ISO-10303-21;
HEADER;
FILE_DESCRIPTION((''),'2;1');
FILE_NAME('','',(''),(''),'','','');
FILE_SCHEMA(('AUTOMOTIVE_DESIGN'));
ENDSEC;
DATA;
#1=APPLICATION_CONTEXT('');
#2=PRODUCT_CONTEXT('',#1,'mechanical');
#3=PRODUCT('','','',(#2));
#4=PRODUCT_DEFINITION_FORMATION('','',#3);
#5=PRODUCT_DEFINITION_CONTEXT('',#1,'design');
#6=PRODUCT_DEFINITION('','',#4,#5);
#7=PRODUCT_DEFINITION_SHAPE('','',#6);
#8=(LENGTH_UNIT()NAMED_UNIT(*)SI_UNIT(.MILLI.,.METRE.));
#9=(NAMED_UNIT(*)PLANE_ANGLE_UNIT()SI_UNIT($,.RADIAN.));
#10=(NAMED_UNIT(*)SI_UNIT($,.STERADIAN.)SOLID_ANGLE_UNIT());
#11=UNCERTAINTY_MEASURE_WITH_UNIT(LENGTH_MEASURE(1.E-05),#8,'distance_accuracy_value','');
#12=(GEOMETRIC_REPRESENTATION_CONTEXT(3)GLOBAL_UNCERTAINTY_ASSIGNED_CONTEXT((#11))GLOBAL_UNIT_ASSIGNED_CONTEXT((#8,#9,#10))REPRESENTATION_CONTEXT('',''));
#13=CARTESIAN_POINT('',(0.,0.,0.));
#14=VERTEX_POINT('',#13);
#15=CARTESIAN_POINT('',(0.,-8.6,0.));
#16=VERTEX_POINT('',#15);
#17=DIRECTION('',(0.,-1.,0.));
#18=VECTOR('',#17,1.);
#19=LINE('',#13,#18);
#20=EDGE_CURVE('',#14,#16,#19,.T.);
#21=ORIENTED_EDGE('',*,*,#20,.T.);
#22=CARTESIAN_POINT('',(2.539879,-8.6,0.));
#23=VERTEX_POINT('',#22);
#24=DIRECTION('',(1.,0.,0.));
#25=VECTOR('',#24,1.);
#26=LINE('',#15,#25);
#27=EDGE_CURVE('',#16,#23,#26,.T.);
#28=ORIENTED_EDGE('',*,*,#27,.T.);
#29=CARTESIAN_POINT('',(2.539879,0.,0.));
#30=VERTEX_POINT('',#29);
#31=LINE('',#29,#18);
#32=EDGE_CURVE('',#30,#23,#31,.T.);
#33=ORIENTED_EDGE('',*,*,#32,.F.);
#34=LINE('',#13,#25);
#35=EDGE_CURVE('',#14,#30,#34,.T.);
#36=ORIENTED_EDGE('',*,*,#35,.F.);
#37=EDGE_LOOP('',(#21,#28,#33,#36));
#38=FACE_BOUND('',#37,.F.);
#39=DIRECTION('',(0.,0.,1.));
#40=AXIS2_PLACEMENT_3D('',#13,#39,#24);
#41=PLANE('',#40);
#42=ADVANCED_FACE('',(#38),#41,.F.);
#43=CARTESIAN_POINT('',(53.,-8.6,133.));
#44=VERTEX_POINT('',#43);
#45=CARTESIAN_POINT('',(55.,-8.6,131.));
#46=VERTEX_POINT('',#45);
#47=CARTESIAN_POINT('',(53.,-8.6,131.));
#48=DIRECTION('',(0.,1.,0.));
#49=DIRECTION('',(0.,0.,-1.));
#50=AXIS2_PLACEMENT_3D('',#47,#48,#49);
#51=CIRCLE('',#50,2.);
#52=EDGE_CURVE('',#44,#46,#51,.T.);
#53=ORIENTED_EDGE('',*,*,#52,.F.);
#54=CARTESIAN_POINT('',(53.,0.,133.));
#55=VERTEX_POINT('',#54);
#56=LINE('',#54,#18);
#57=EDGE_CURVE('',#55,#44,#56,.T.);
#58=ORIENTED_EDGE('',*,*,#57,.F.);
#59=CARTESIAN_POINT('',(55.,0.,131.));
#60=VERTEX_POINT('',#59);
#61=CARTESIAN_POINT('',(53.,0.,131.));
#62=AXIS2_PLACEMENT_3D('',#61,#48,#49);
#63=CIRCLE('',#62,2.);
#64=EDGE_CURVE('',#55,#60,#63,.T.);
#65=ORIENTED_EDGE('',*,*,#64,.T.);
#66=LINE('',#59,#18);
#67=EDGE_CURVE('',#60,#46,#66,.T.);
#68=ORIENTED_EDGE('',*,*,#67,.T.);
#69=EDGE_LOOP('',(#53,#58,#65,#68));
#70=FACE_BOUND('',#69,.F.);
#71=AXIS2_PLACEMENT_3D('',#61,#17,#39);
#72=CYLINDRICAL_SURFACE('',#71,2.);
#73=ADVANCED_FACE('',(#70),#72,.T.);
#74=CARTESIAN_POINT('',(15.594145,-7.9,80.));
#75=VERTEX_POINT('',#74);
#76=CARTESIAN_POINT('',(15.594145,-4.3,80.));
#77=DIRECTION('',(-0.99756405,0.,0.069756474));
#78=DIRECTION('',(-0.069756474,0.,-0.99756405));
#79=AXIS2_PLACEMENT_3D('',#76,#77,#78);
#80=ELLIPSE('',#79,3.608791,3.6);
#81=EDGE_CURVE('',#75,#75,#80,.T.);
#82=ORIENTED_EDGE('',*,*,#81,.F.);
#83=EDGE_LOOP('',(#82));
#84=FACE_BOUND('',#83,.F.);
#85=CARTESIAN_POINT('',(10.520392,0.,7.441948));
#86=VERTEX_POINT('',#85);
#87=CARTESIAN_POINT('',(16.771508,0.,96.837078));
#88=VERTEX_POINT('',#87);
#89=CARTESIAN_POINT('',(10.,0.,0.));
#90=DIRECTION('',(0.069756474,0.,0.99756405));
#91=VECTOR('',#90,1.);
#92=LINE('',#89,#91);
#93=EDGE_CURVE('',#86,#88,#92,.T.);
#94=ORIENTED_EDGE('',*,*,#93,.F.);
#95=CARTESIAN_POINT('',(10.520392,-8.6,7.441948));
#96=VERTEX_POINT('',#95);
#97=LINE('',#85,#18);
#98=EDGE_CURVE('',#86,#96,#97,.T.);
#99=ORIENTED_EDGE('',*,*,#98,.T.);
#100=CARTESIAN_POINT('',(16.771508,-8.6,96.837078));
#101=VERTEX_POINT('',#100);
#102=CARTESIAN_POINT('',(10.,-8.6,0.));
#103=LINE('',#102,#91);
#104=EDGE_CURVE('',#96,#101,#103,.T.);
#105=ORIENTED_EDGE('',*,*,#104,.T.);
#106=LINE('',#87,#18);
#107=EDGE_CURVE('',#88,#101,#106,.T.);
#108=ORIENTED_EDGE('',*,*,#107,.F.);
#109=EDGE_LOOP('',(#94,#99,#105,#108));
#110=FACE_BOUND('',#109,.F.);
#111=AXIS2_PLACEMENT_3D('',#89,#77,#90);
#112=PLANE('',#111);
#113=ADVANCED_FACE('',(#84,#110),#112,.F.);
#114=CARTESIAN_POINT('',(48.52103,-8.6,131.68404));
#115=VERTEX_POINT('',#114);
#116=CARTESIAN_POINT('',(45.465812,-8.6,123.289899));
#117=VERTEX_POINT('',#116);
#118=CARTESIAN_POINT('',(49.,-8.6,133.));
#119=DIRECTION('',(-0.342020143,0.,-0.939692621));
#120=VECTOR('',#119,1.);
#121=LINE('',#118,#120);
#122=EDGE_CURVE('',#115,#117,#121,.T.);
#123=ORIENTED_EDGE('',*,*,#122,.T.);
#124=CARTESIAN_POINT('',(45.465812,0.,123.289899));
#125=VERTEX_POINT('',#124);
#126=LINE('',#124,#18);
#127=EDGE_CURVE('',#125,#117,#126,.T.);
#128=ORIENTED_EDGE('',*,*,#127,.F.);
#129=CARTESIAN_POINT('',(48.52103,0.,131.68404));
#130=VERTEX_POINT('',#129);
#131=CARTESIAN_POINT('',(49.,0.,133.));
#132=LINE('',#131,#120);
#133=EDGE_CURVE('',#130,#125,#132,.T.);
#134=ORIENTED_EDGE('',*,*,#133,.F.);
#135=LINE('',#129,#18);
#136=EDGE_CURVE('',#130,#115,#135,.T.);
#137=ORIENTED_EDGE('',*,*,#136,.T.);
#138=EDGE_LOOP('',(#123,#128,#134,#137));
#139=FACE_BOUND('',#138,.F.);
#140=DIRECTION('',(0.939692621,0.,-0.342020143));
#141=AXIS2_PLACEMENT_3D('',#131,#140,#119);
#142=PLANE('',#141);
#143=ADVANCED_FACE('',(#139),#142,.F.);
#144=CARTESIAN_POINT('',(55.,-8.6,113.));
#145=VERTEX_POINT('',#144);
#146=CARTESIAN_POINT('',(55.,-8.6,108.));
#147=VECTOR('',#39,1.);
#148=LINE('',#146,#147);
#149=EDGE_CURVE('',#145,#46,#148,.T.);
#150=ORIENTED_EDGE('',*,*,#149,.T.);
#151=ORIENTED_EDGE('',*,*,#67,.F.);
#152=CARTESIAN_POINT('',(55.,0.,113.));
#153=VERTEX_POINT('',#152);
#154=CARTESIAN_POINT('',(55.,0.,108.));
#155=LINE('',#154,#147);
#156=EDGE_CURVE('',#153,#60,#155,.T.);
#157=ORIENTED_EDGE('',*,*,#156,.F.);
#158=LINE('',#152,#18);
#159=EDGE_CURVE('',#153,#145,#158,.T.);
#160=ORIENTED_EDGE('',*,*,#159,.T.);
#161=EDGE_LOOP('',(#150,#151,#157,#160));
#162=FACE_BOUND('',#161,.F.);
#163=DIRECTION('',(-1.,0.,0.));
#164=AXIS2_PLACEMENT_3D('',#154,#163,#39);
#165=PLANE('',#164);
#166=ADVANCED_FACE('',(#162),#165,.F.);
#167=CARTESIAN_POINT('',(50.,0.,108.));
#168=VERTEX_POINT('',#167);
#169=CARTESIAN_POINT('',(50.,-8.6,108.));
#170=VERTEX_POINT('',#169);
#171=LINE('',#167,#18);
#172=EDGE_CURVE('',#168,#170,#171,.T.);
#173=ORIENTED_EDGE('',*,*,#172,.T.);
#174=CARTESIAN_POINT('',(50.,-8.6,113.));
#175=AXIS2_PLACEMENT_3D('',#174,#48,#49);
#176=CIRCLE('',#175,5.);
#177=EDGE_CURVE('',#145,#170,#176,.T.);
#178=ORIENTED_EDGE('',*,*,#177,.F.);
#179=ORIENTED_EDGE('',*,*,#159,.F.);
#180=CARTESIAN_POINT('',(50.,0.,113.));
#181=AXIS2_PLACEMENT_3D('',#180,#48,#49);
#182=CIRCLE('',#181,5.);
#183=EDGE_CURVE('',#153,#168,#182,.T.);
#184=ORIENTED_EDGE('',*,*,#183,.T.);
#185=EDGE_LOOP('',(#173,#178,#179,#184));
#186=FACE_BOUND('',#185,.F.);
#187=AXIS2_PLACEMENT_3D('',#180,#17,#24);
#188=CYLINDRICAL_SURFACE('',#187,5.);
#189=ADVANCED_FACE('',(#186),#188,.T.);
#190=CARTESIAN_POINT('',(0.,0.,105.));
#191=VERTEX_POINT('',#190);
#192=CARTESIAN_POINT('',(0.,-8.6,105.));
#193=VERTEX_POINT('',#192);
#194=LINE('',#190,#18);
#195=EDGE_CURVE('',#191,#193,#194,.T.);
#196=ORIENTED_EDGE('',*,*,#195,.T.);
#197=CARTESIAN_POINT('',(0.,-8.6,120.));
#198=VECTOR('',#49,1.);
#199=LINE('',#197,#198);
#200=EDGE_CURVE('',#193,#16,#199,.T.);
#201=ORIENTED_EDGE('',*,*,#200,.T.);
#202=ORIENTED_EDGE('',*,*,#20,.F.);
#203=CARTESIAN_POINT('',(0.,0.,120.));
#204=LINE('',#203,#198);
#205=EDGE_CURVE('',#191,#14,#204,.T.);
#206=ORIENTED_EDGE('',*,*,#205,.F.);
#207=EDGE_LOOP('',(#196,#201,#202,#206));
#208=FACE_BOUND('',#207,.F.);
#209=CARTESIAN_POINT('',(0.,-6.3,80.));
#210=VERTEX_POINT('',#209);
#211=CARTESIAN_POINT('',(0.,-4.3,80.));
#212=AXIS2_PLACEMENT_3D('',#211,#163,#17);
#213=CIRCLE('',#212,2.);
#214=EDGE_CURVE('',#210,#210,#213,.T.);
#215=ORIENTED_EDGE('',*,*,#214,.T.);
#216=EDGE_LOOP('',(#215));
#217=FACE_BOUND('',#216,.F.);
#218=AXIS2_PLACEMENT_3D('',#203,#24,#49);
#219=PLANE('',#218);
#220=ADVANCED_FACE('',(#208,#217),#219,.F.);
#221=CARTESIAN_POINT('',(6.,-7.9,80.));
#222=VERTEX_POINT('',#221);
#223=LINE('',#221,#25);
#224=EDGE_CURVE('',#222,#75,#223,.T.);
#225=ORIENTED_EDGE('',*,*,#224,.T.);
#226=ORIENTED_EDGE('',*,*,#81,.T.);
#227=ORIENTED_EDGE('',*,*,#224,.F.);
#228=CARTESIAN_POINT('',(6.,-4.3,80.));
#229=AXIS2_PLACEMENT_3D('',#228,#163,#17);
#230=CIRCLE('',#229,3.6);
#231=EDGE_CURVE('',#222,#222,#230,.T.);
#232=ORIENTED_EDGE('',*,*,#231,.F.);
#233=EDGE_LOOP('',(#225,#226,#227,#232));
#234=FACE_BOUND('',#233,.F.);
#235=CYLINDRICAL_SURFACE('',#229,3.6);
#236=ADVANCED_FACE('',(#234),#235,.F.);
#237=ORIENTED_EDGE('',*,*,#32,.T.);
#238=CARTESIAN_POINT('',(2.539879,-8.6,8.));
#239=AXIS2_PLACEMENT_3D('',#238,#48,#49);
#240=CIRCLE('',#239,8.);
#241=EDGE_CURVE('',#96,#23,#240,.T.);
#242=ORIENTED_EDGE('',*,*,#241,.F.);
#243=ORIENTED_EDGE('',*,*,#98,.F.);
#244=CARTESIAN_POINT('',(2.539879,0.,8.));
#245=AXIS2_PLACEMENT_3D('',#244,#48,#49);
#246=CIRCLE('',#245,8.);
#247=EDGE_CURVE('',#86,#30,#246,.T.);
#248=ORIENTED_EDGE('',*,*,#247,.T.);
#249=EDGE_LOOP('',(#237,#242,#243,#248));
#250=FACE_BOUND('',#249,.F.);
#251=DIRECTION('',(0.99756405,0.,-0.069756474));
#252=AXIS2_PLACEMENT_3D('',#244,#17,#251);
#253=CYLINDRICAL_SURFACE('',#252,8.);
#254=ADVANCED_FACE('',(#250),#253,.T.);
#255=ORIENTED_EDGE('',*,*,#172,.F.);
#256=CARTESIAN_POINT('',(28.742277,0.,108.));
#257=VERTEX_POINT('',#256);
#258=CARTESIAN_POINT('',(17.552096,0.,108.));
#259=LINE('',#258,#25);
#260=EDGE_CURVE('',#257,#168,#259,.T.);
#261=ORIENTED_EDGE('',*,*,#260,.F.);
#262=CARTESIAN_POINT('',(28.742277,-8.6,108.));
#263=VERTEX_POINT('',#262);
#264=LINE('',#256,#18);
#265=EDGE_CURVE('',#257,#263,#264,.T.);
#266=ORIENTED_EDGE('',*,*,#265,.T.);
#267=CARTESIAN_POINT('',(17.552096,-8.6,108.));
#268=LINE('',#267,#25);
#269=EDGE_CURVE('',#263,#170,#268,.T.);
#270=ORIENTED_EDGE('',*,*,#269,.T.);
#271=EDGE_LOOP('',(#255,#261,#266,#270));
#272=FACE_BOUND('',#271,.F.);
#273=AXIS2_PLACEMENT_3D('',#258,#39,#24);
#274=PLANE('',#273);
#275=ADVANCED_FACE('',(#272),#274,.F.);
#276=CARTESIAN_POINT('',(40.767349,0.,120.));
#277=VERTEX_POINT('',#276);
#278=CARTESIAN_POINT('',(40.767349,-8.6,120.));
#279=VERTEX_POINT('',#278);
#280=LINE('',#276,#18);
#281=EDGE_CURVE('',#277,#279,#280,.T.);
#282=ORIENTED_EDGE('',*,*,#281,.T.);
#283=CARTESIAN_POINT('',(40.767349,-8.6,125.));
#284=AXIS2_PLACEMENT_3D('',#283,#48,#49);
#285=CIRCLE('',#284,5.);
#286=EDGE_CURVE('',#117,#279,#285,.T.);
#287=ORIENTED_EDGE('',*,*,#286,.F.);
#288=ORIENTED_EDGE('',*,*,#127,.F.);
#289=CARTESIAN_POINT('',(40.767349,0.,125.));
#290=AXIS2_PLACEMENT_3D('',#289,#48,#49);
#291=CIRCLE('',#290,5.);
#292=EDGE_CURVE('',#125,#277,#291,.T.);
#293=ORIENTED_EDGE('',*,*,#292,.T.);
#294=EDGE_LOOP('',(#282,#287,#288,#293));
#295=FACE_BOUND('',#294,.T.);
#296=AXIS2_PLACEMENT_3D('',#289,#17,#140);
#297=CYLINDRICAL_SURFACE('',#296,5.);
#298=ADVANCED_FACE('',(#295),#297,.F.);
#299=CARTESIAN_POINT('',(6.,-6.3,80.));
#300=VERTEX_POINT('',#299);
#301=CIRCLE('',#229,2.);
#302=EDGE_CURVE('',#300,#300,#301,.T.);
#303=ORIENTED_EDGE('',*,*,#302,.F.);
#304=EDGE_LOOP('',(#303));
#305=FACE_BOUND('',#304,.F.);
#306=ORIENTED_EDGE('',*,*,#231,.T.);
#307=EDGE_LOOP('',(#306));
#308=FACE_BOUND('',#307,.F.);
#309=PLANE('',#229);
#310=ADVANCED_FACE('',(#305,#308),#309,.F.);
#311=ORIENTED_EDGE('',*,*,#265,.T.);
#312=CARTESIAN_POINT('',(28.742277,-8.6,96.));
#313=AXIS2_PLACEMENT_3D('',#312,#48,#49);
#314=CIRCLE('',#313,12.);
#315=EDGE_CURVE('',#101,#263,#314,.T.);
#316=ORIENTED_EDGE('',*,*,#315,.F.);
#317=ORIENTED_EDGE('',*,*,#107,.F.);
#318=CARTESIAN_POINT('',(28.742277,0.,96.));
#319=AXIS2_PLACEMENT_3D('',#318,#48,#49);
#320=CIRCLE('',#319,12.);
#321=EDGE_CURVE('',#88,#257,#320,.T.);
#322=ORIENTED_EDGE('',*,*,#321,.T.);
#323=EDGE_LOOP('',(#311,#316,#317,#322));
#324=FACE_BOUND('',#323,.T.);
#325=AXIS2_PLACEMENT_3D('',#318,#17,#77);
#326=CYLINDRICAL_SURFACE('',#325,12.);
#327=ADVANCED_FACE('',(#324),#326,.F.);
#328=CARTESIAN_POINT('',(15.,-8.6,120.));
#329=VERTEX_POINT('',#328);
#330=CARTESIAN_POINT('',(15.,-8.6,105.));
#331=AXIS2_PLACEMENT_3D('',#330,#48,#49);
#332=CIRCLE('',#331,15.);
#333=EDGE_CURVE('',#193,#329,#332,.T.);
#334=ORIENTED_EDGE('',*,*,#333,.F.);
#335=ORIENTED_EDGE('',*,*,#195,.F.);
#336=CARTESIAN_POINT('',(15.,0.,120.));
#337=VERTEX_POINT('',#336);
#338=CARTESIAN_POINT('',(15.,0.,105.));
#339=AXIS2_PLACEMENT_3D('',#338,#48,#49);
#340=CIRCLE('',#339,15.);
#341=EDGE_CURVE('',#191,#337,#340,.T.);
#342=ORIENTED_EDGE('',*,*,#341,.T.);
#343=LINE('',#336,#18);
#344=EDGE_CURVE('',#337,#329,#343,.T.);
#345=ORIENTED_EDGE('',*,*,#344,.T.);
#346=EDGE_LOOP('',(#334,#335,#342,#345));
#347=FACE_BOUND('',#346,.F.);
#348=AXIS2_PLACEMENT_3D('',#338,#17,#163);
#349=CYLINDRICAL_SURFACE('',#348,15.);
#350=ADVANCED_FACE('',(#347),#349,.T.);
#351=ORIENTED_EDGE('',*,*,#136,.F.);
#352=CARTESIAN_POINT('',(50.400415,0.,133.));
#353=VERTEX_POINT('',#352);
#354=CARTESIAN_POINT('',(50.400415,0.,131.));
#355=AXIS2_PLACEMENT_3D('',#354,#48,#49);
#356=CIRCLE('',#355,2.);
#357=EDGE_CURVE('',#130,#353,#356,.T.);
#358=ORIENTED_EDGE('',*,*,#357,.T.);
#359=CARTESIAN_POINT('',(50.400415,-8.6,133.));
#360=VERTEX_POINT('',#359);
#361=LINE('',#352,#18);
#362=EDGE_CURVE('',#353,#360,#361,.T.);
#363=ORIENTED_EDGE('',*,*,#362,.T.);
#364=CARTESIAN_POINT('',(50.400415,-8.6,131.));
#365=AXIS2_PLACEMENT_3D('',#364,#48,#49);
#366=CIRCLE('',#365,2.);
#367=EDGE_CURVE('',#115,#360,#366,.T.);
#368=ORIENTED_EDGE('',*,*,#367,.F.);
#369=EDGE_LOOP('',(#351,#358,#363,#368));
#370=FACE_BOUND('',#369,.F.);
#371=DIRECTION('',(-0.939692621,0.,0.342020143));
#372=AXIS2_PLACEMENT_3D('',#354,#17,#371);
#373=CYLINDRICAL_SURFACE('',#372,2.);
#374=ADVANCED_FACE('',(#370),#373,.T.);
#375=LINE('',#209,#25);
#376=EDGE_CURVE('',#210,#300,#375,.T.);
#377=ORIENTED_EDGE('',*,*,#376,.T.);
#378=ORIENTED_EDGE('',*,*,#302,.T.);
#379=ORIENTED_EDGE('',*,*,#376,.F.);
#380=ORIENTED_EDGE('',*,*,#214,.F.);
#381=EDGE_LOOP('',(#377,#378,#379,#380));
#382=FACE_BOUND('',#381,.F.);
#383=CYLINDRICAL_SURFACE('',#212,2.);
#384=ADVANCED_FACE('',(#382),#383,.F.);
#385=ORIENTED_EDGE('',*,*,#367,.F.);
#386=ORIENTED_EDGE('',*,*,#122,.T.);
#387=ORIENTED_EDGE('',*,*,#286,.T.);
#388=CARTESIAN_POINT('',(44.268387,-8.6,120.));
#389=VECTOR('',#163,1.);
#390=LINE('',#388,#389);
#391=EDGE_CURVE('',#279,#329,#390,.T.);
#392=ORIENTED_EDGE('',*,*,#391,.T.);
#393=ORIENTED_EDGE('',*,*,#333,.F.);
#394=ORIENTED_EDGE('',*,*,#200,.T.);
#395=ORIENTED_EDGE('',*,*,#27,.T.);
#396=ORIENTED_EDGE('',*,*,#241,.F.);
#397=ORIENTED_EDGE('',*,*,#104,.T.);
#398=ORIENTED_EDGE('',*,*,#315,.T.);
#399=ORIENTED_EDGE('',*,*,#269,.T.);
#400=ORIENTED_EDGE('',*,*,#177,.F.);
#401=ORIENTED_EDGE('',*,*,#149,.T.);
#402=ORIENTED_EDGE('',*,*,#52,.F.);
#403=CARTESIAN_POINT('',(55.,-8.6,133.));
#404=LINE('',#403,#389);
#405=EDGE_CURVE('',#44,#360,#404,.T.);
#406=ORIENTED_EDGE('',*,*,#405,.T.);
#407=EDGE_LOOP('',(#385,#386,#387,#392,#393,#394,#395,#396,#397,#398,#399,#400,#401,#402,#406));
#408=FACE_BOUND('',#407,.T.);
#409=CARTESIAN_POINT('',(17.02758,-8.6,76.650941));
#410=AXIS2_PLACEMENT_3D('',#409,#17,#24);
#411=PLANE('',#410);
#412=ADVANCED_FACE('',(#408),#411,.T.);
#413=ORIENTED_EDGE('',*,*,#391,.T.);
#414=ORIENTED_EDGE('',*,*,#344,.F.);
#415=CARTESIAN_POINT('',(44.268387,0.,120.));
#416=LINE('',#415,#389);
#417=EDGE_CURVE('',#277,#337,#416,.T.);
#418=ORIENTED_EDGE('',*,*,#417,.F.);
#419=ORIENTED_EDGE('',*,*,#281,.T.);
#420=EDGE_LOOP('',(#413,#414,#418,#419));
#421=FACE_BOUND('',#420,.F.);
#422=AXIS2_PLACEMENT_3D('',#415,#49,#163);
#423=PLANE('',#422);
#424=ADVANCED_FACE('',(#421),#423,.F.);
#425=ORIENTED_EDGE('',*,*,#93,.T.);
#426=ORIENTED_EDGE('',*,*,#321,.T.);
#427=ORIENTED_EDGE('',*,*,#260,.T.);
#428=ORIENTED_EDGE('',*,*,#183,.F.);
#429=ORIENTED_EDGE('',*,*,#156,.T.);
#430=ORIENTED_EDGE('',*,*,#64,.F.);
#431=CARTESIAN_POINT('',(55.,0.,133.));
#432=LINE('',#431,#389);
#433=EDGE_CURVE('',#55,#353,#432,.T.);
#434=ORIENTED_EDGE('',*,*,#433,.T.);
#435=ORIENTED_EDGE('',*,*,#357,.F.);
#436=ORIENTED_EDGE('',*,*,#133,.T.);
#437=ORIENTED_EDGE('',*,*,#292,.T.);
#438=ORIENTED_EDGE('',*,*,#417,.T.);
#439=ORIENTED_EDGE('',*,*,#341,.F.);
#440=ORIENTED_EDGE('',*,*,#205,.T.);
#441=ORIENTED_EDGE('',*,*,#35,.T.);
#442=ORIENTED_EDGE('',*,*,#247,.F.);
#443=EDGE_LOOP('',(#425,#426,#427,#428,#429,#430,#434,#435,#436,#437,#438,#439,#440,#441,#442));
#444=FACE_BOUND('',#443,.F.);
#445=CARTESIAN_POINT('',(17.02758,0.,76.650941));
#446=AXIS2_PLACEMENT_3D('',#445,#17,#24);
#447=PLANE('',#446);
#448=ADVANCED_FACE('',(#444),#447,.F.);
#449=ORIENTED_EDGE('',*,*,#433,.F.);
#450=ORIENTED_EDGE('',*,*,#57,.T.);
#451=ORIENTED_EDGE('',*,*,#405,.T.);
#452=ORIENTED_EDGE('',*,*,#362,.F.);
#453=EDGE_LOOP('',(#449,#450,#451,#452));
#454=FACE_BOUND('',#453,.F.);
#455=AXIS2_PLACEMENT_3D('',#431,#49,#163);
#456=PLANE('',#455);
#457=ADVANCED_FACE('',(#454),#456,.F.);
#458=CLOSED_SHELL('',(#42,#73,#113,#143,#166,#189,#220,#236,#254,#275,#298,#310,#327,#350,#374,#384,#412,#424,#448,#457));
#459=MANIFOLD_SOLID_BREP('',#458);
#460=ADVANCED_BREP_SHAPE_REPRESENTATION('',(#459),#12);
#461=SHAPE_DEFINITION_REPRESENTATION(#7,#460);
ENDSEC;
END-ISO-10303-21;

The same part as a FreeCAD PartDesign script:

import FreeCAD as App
import Part
import Sketcher

V = App.Vector
Q = App.Units.Quantity


def edges_at(feature, points):
    """Names of the edges that pass closest to the given points."""
    edges = feature.Shape.Edges
    near = lambda p: min(range(len(edges)), key=lambda i: edges[i].distToShape(Part.Vertex(*p))[0])
    return sorted({f"Edge{near(p) + 1}" for p in points})


def add_polygon(sketch, points):
    """Adds a closed chain of lines whose ends are joined by coincident constraints."""
    first, n = sketch.GeometryCount, len(points)
    for a, b in zip(points, points[1:] + points[:1]):
        sketch.addGeometry(Part.LineSegment(App.Vector(*a, 0), App.Vector(*b, 0)), False)
    for i in range(n):
        sketch.addConstraint(Sketcher.Constraint("Coincident", first + i, 2, first + (i + 1) % n, 1))

doc = App.newDocument("Part")
body = doc.addObject("PartDesign::Body", "Body")

sketch1 = doc.addObject("Sketcher::SketchObject", "Sketch")
body.addObject(sketch1)
sketch1.AttachmentSupport = (doc.XZ_Plane, [""])
sketch1.MapMode = "FlatFace"
add_polygon(sketch1, [(0, 120), (0, 0), (10, 0), (18, 108), (55, 108), (55, 133), (49, 133), (44, 120)])
sketch1.addConstraint([
    Sketcher.Constraint("Vertical", 0),
    Sketcher.Constraint("Horizontal", 1),
    Sketcher.Constraint("Horizontal", 3),
    Sketcher.Constraint("Vertical", 4),
    Sketcher.Constraint("Horizontal", 5),
    Sketcher.Constraint("Horizontal", 7),
    Sketcher.Constraint("Coincident", 0, 2, -1, 1),
    Sketcher.Constraint("DistanceX", 1, 1, 1, 2, Q("10 mm")),
    Sketcher.Constraint("DistanceX", 5, 2, 5, 1, Q("6 mm")),
    Sketcher.Constraint("DistanceY", 0, 2, 0, 1, Q("120 mm")),
    Sketcher.Constraint("DistanceY", 4, 1, 4, 2, Q("25 mm")),
    Sketcher.Constraint("Angle", 2, Q("86 deg")),
    Sketcher.Constraint("Angle", 6, Q("-110 deg")),
    Sketcher.Constraint("DistanceY", -1, 1, 2, 2, Q("108 mm")),
    Sketcher.Constraint("DistanceX", -1, 1, 3, 2, Q("55 mm")),
])
pad1 = doc.addObject("PartDesign::Pad", "Pad")
body.addObject(pad1)
pad1.Profile = sketch1
pad1.Length = 8.6
doc.recompute()

fillet = doc.addObject("PartDesign::Fillet", "Fillet")
body.addObject(fillet)
fillet.Base = (pad1, edges_at(pad1, [(17.552, -4.3, 108)]))
fillet.Radius = 12
doc.recompute()

fillet2 = doc.addObject("PartDesign::Fillet", "Fillet001")
body.addObject(fillet2)
fillet2.Base = (fillet, edges_at(fillet, [(10, -4.3, 0)]))
fillet2.Radius = 8
doc.recompute()

fillet3 = doc.addObject("PartDesign::Fillet", "Fillet002")
body.addObject(fillet3)
fillet3.Base = (fillet2, edges_at(fillet2, [(0, -4.3, 120)]))
fillet3.Radius = 15
doc.recompute()

fillet4 = doc.addObject("PartDesign::Fillet", "Fillet003")
body.addObject(fillet4)
fillet4.Base = (fillet3, edges_at(fillet3, [(55, -4.3, 108)]))
fillet4.Radius = 5
doc.recompute()

fillet5 = doc.addObject("PartDesign::Fillet", "Fillet004")
body.addObject(fillet5)
fillet5.Base = (fillet4, edges_at(fillet4, [(44.268, -4.3, 120)]))
fillet5.Radius = 5
doc.recompute()

fillet6 = doc.addObject("PartDesign::Fillet", "Fillet005")
body.addObject(fillet6)
fillet6.Base = (fillet5, edges_at(fillet5, [(49, -4.3, 133), (55, -4.3, 133)]))
fillet6.Radius = 2

sketch2 = doc.addObject("Sketcher::SketchObject", "Sketch001")
body.addObject(sketch2)
sketch2.AttachmentSupport = (doc.YZ_Plane, [""])
sketch2.MapMode = "FlatFace"
sketch2.addGeometry(Part.Circle(V(-4.3, 80, 0), V(0, 0, 1), 2), False)
sketch2.addConstraint([
    Sketcher.Constraint("Diameter", 0, Q("4 mm")),
    Sketcher.Constraint("DistanceY", -1, 1, 0, 3, Q("80 mm")),
    Sketcher.Constraint("DistanceX", 0, 3, -1, 1, Q("4.3 mm")),
])
pocket1 = doc.addObject("PartDesign::Pocket", "Pocket")
body.addObject(pocket1)
pocket1.Profile = sketch2
pocket1.Length = 25
pocket1.Reversed = True

sketch3 = doc.addObject("Sketcher::SketchObject", "Sketch002")
body.addObject(sketch3)
sketch3.AttachmentSupport = (doc.YZ_Plane, [""])
sketch3.MapMode = "FlatFace"
sketch3.AttachmentOffset = App.Placement(V(0, 0, 6), App.Rotation())
sketch3.addGeometry(Part.Circle(V(-4.3, 80, 0), V(0, 0, 1), 3.6), False)
sketch3.addConstraint([
    Sketcher.Constraint("Diameter", 0, Q("7.2 mm")),
    Sketcher.Constraint("DistanceY", -1, 1, 0, 3, Q("80 mm")),
    Sketcher.Constraint("DistanceX", 0, 3, -1, 1, Q("4.3 mm")),
])
pocket2 = doc.addObject("PartDesign::Pocket", "Pocket001")
body.addObject(pocket2)
pocket2.Profile = sketch3
pocket2.Length = 19
pocket2.Reversed = True

doc.recompute()
